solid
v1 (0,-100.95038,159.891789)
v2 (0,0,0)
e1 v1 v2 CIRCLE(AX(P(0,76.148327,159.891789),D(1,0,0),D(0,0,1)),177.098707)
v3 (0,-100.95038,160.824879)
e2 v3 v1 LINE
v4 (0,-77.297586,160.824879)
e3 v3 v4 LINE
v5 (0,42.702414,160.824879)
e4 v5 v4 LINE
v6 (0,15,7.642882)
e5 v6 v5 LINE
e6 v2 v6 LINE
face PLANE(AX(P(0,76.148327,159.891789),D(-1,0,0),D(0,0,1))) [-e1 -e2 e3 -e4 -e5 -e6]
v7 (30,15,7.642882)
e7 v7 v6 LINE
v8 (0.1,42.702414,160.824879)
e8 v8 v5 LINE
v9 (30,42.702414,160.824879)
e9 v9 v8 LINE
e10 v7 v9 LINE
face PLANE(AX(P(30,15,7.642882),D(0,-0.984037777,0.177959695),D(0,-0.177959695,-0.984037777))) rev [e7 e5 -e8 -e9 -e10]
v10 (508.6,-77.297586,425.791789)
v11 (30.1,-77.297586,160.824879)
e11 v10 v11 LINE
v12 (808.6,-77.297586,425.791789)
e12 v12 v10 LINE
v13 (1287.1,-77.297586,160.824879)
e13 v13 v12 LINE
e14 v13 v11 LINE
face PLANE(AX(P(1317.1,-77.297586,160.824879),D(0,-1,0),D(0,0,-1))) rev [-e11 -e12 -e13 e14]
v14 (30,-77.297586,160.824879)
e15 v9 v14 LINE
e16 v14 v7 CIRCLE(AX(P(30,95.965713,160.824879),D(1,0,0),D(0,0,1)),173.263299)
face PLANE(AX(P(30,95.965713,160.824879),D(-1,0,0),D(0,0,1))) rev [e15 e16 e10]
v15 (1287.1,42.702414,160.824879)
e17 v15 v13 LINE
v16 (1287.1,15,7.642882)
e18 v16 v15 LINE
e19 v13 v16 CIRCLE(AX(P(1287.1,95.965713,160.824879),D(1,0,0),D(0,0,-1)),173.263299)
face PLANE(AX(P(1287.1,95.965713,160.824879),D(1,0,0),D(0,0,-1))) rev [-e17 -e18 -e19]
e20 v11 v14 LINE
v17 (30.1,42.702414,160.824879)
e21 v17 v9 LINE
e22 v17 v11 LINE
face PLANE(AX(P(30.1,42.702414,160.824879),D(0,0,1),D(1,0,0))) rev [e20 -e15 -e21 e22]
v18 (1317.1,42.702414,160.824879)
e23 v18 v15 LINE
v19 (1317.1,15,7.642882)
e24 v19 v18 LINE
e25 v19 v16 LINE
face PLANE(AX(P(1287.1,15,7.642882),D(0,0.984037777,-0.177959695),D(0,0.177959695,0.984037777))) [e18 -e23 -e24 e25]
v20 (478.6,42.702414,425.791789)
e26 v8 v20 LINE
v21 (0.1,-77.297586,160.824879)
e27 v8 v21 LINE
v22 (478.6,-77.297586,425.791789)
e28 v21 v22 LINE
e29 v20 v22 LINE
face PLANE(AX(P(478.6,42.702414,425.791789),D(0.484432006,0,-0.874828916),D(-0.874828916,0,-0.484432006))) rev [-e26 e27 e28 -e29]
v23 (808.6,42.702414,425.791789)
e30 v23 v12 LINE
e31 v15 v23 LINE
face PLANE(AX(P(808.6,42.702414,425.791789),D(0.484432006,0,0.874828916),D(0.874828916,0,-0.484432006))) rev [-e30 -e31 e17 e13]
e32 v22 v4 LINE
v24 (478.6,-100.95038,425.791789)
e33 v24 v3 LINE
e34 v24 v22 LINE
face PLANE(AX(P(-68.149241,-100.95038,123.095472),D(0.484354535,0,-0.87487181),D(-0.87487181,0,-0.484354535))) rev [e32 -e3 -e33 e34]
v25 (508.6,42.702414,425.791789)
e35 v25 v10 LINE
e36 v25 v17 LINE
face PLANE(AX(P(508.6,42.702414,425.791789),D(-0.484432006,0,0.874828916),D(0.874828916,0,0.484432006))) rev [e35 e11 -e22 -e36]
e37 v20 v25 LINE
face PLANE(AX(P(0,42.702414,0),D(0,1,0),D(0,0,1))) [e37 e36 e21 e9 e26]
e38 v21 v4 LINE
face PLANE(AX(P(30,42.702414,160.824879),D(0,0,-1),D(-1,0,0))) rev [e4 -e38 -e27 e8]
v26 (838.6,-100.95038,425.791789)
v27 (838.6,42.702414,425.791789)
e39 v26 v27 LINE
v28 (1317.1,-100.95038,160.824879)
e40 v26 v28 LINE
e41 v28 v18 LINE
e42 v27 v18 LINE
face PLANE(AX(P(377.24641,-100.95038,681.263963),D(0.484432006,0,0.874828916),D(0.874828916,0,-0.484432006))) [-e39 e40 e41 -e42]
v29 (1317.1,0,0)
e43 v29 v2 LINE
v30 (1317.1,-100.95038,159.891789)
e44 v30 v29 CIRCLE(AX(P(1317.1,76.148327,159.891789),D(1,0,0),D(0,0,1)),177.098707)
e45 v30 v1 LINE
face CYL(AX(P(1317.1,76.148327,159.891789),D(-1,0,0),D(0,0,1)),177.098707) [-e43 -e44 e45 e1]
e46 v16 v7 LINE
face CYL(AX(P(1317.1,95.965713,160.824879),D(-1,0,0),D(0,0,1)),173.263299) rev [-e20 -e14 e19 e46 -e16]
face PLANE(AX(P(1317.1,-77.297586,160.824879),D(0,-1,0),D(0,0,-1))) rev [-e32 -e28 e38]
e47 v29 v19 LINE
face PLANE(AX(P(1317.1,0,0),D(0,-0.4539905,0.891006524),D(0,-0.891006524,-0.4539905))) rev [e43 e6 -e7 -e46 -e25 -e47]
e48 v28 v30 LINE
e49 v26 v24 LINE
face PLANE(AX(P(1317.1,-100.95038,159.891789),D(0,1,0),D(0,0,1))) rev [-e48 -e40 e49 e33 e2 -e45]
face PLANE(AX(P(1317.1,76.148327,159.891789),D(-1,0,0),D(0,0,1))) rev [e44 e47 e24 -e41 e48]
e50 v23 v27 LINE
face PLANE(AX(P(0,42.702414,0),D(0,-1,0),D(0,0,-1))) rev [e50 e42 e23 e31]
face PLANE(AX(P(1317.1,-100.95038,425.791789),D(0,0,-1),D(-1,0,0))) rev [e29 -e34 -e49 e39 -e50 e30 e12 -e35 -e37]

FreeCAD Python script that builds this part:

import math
import FreeCAD as App
import Part
import Sketcher
from FreeCAD import Vector
Q = App.Units.Quantity


def add_polygon(sketch, points):
    """Adds a closed chain of lines whose ends are joined by coincident constraints."""
    first, n = sketch.GeometryCount, len(points)
    for a, b in zip(points, points[1:] + points[:1]):
        sketch.addGeometry(Part.LineSegment(App.Vector(*a, 0), App.Vector(*b, 0)), False)
    for i in range(n):
        sketch.addConstraint(Sketcher.Constraint("Coincident", first + i, 2, first + (i + 1) % n, 1))

doc = App.newDocument("Part")
body = doc.addObject("PartDesign::Body", "Body")

# Sketch on YZ plane
sketch1 = body.newObject("Sketcher::SketchObject", "Sketch")
sketch1.AttachmentSupport = (doc.getObject("YZ_Plane"), [""])
sketch1.MapMode = "FlatFace"
sketch1.addGeometry(Part.LineSegment(Vector(-100.95038, 425.791789, 0), Vector(-100.95038, 159.891789, 0)), False)
sketch1.addGeometry(Part.ArcOfCircle(Part.Circle(Vector(76.148327, 159.891789, 0), Vector(0, 0, 1), 177.098707), math.radians(-180), math.radians(-115.466085)), False)
sketch1.addGeometry(Part.LineSegment(Vector(0, 0, 0), Vector(15, 7.642882, 0)), False)
sketch1.addGeometry(Part.ArcOfCircle(Part.Circle(Vector(95.965713, 160.824879, 0), Vector(0, 0, 1), 173.263299), math.radians(-180), math.radians(-117.859091)), False)
sketch1.addGeometry(Part.LineSegment(Vector(-77.297586, 160.824879, 0), Vector(-77.297586, 425.791789, 0)), False)
sketch1.addGeometry(Part.LineSegment(Vector(-77.297586, 425.791789, 0), Vector(-100.95038, 425.791789, 0)), False)
sketch1.addConstraint(Sketcher.Constraint("Tangent", 0, 2, 1, 1))
sketch1.addConstraint(Sketcher.Constraint("Coincident", 1, 2, 2, 1))
sketch1.addConstraint(Sketcher.Constraint("Coincident", 2, 2, 3, 2))
sketch1.addConstraint(Sketcher.Constraint("Tangent", 3, 1, 4, 1))
sketch1.addConstraint(Sketcher.Constraint("Coincident", 4, 2, 5, 1))
sketch1.addConstraint(Sketcher.Constraint("Coincident", 5, 2, 0, 1))
sketch1.addConstraint(Sketcher.Constraint("Vertical", 0))
sketch1.addConstraint(Sketcher.Constraint("Vertical", 4))
sketch1.addConstraint(Sketcher.Constraint("Horizontal", 5))
sketch1.addConstraint(Sketcher.Constraint("Coincident", 1, 2, -1, 1))
sketch1.addConstraint(Sketcher.Constraint("Angle", 2, Q("27 deg")))
sketch1.addConstraint(Sketcher.Constraint("DistanceY", 0, 2, 0, 1, Q("265.9 mm")))
sketch1.addConstraint(Sketcher.Constraint("DistanceX", -1, 1, 2, 2, Q("15 mm")))
sketch1.addConstraint(Sketcher.Constraint("Radius", 3, Q("173.263299 mm")))
sketch1.addConstraint(Sketcher.Constraint("Radius", 1, Q("177.098707 mm")))
sketch1.addConstraint(Sketcher.Constraint("DistanceY", 4, 1, 4, 2, Q("264.96691 mm")))
sketch1.addConstraint(Sketcher.Constraint("DistanceX", 5, 2, 5, 1, Q("23.652793 mm")))
pad1 = body.newObject("PartDesign::Pad", "Pad")
pad1.Profile = sketch1
pad1.Length = 1317.1

# Sketch on XZ plane
sketch2 = body.newObject("Sketcher::SketchObject", "Sketch001")
sketch2.AttachmentSupport = (doc.getObject("XZ_Plane"), [""])
sketch2.MapMode = "FlatFace"
sketch2.AttachmentOffset = App.Placement(Vector(0, 0, 77.297586), App.Rotation())
add_polygon(sketch2, [(0, 425.791789), (478.6, 425.791789), (0, 160.824879)])  # lines 0-2
add_polygon(sketch2, [(1317.1, 160.824879), (838.6, 425.791789), (1317.1, 425.791789)])  # lines 3-5
sketch2.addConstraint(Sketcher.Constraint("Horizontal", 0))
sketch2.addConstraint(Sketcher.Constraint("Vertical", 2))
sketch2.addConstraint(Sketcher.Constraint("Horizontal", 4))
sketch2.addConstraint(Sketcher.Constraint("Vertical", 5))
sketch2.addConstraint(Sketcher.Constraint("PointOnObject", 1, 2, -2))
sketch2.addConstraint(Sketcher.Constraint("Horizontal", 2, 2, 3, 2))
sketch2.addConstraint(Sketcher.Constraint("Horizontal", 1, 2, 5, 2))
sketch2.addConstraint(Sketcher.Constraint("DistanceX", 0, 1, 0, 2, Q("478.6 mm")))
sketch2.addConstraint(Sketcher.Constraint("DistanceX", 4, 1, 4, 2, Q("478.5 mm")))
sketch2.addConstraint(Sketcher.Constraint("DistanceX", 0, 2, 3, 2, Q("360 mm")))
sketch2.addConstraint(Sketcher.Constraint("DistanceY", 2, 1, 2, 2, Q("264.96691 mm")))
sketch2.addConstraint(Sketcher.Constraint("DistanceY", -1, 1, 0, 2, Q("425.791789 mm")))
pocket1 = body.newObject("PartDesign::Pocket", "Pocket")
pocket1.Profile = sketch2
pocket1.Type = "ThroughAll"
pocket1.Reversed = True

# Sketch on XZ plane
sketch3 = body.newObject("Sketcher::SketchObject", "Sketch002")
sketch3.AttachmentSupport = (doc.getObject("XZ_Plane"), [""])
sketch3.MapMode = "FlatFace"
sketch3.AttachmentOffset = App.Placement(Vector(0, 0, 77.297586), App.Rotation())
add_polygon(sketch3, [(808.6, 425.791789), (838.6, 425.791789), (1317.1, 160.824879), (1287.1, 160.824879)])  # lines 0-3
add_polygon(sketch3, [(478.6, 425.791789), (508.6, 425.791789), (30.1, 160.824879), (0.1, 160.824879)])  # lines 4-7
sketch3.addConstraint(Sketcher.Constraint("Horizontal", 0))
sketch3.addConstraint(Sketcher.Constraint("Horizontal", 2))
sketch3.addConstraint(Sketcher.Constraint("Horizontal", 4))
sketch3.addConstraint(Sketcher.Constraint("Horizontal", 6))
sketch3.addConstraint(Sketcher.Constraint("Parallel", 1, 3))
sketch3.addConstraint(Sketcher.Constraint("Parallel", 5, 7))
sketch3.addConstraint(Sketcher.Constraint("Horizontal", 3, 2, 4, 2))
sketch3.addConstraint(Sketcher.Constraint("Horizontal", 2, 2, 5, 2))
sketch3.addConstraint(Sketcher.Constraint("Equal", 2, 4))
sketch3.addConstraint(Sketcher.Constraint("Equal", 3, 5))
sketch3.addConstraint(Sketcher.Constraint("DistanceX", 0, 1, 0, 2, Q("30 mm")))
sketch3.addConstraint(Sketcher.Constraint("DistanceX", 4, 2, 3, 2, Q("300 mm")))
sketch3.addConstraint(Sketcher.Constraint("DistanceX", 5, 2, 2, 2, Q("1257 mm")))
sketch3.addConstraint(Sketcher.Constraint("DistanceX", -1, 1, 0, 2, Q("838.6 mm")))
sketch3.addConstraint(Sketcher.Constraint("DistanceY", -1, 1, 0, 2, Q("425.791789 mm")))
sketch3.addConstraint(Sketcher.Constraint("DistanceY", -1, 1, 1, 2, Q("160.824879 mm")))
pad2 = body.newObject("PartDesign::Pad", "Pad001")
pad2.Profile = sketch3
pad2.Length = 120
pad2.Reversed = True

# Sketch on YZ plane
sketch4 = body.newObject("Sketcher::SketchObject", "Sketch003")
sketch4.AttachmentSupport = (doc.getObject("YZ_Plane"), [""])
sketch4.MapMode = "FlatFace"
sketch4.addGeometry(Part.LineSegment(Vector(15, 7.642882, 0), Vector(42.702414, 160.824879, 0)), False)
sketch4.addGeometry(Part.LineSegment(Vector(42.702414, 160.824879, 0), Vector(-77.297586, 160.824879, 0)), False)
sketch4.addGeometry(Part.ArcOfCircle(Part.Circle(Vector(95.965713, 160.824879, 0), Vector(0, 0, 1), 173.263299), math.radians(-180), math.radians(-117.859091)), False)
sketch4.addConstraint(Sketcher.Constraint("Coincident", 0, 2, 1, 1))
sketch4.addConstraint(Sketcher.Constraint("Coincident", 1, 2, 2, 1))
sketch4.addConstraint(Sketcher.Constraint("Coincident", 2, 2, 0, 1))
sketch4.addConstraint(Sketcher.Constraint("Horizontal", 1))
sketch4.addConstraint(Sketcher.Constraint("Horizontal", 2, 3, 0, 2))
sketch4.addConstraint(Sketcher.Constraint("DistanceX", 1, 2, 1, 1, Q("120 mm")))
sketch4.addConstraint(Sketcher.Constraint("DistanceX", -1, 1, 2, 2, Q("15 mm")))
sketch4.addConstraint(Sketcher.Constraint("Radius", 2, Q("173.263299 mm")))
sketch4.addConstraint(Sketcher.Constraint("DistanceY", -1, 1, 2, 3, Q("160.824879 mm")))
sketch4.addConstraint(Sketcher.Constraint("DistanceY", -1, 1, 2, 2, Q("7.642882 mm")))
pad3 = body.newObject("PartDesign::Pad", "Pad002")
pad3.Profile = sketch4
pad3.Length = 30

# Sketch on YZ plane
sketch5 = body.newObject("Sketcher::SketchObject", "Sketch004")
sketch5.AttachmentSupport = (doc.getObject("YZ_Plane"), [""])
sketch5.MapMode = "FlatFace"
sketch5.AttachmentOffset = App.Placement(Vector(0, 0, 1287.1), App.Rotation())
sketch5.addGeometry(Part.LineSegment(Vector(15, 7.642882, 0), Vector(42.702414, 160.824879, 0)), False)
sketch5.addGeometry(Part.LineSegment(Vector(42.702414, 160.824879, 0), Vector(-77.297586, 160.824879, 0)), False)
sketch5.addGeometry(Part.ArcOfCircle(Part.Circle(Vector(95.965713, 160.824879, 0), Vector(0, 0, 1), 173.263299), math.radians(-180), math.radians(-117.859091)), False)
sketch5.addConstraint(Sketcher.Constraint("Coincident", 0, 2, 1, 1))
sketch5.addConstraint(Sketcher.Constraint("Coincident", 1, 2, 2, 1))
sketch5.addConstraint(Sketcher.Constraint("Coincident", 2, 2, 0, 1))
sketch5.addConstraint(Sketcher.Constraint("Horizontal", 1))
sketch5.addConstraint(Sketcher.Constraint("Horizontal", 2, 3, 0, 2))
sketch5.addConstraint(Sketcher.Constraint("DistanceX", 1, 2, 1, 1, Q("120 mm")))
sketch5.addConstraint(Sketcher.Constraint("DistanceX", -1, 1, 2, 2, Q("15 mm")))
sketch5.addConstraint(Sketcher.Constraint("Radius", 2, Q("173.263299 mm")))
sketch5.addConstraint(Sketcher.Constraint("DistanceY", -1, 1, 2, 3, Q("160.824879 mm")))
sketch5.addConstraint(Sketcher.Constraint("DistanceY", -1, 1, 2, 2, Q("7.642882 mm")))
pad4 = body.newObject("PartDesign::Pad", "Pad003")
pad4.Profile = sketch5
pad4.Length = 30

doc.recompute()
